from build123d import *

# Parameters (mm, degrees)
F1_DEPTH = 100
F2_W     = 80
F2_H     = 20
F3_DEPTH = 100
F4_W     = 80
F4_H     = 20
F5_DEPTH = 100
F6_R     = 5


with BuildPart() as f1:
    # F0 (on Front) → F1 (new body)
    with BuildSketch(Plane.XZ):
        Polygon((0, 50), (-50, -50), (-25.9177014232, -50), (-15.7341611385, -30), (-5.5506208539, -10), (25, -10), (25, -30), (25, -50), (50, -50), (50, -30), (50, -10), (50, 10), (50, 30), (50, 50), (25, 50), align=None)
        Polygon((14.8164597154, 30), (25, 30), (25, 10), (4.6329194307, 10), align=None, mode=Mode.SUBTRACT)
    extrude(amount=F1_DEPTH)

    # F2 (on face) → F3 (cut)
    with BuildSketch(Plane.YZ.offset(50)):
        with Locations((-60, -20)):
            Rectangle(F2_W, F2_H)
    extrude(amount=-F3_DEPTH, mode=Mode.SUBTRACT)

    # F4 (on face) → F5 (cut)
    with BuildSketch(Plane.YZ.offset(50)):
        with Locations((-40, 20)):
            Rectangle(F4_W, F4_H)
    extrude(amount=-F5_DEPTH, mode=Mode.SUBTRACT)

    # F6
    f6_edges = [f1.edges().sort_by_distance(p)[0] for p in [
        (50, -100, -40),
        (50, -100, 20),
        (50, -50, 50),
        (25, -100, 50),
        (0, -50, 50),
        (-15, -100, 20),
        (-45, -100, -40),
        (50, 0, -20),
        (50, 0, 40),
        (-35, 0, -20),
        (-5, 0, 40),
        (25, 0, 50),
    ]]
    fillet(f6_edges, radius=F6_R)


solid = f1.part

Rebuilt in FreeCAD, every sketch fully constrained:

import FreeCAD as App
import Part
import Sketcher
Q = App.Units.Quantity


def edges_at(feature, points):
    """Names of the edges that pass closest to the given points."""
    edges = feature.Shape.Edges
    near = lambda p: min(range(len(edges)), key=lambda i: edges[i].distToShape(Part.Vertex(*p))[0])
    return sorted({f"Edge{near(p) + 1}" for p in points})

doc = App.newDocument("Part")
body = doc.addObject("PartDesign::Body", "Body")

# Sketch on XZ plane
sketch1 = body.newObject("Sketcher::SketchObject", "Sketch")
sketch1.AttachmentSupport = (doc.getObject("XZ_Plane"), [""])
sketch1.MapMode = "FlatFace"
sketch1.addGeometry([
    Part.LineSegment(App.Vector(0, 50, 0), App.Vector(-50, -50, 0)),  # 0
    Part.LineSegment(App.Vector(-50, -50, 0), App.Vector(-26, -50, 0)),  # 1
    Part.LineSegment(App.Vector(-26, -50, 0), App.Vector(-16, -30, 0)),  # 2
    Part.LineSegment(App.Vector(-16, -30, 0), App.Vector(-6, -10, 0)),  # 3
    Part.LineSegment(App.Vector(-6, -10, 0), App.Vector(25, -10, 0)),  # 4
    Part.LineSegment(App.Vector(25, -10, 0), App.Vector(25, -50, 0)),  # 5
    Part.LineSegment(App.Vector(25, -50, 0), App.Vector(50, -50, 0)),  # 6
    Part.LineSegment(App.Vector(50, -50, 0), App.Vector(50, 50, 0)),  # 7
    Part.LineSegment(App.Vector(50, 50, 0), App.Vector(0, 50, 0)),  # 8
    Part.LineSegment(App.Vector(5, 10, 0), App.Vector(15, 30, 0)),  # 9
    Part.LineSegment(App.Vector(15, 30, 0), App.Vector(25, 30, 0)),  # 10
    Part.LineSegment(App.Vector(25, 30, 0), App.Vector(25, 10, 0)),  # 11
    Part.LineSegment(App.Vector(25, 10, 0), App.Vector(5, 10, 0)),  # 12
], False)
sketch1.addConstraint([
    Sketcher.Constraint("Coincident", 0, 2, 1, 1),
    Sketcher.Constraint("Coincident", 1, 2, 2, 1),
    Sketcher.Constraint("Coincident", 2, 2, 3, 1),
    Sketcher.Constraint("Coincident", 3, 2, 4, 1),
    Sketcher.Constraint("Coincident", 4, 2, 5, 1),
    Sketcher.Constraint("Coincident", 5, 2, 6, 1),
    Sketcher.Constraint("Coincident", 6, 2, 7, 1),
    Sketcher.Constraint("Coincident", 7, 2, 8, 1),
    Sketcher.Constraint("Coincident", 8, 2, 0, 1),
    Sketcher.Constraint("Coincident", 9, 2, 10, 1),
    Sketcher.Constraint("Coincident", 10, 2, 11, 1),
    Sketcher.Constraint("Coincident", 11, 2, 12, 1),
    Sketcher.Constraint("Coincident", 12, 2, 9, 1),
    Sketcher.Constraint("Horizontal", 1),
    Sketcher.Constraint("Horizontal", 4),
    Sketcher.Constraint("Vertical", 5),
    Sketcher.Constraint("Horizontal", 6),
    Sketcher.Constraint("Vertical", 7),
    Sketcher.Constraint("Horizontal", 8),
    Sketcher.Constraint("Horizontal", 10),
    Sketcher.Constraint("Vertical", 11),
    Sketcher.Constraint("Horizontal", 12),
    Sketcher.Constraint("Symmetric", 0, 2, 7, 2, -1, 1),
    Sketcher.Constraint("Symmetric", 4, 2, 11, 2, -1),
    Sketcher.Constraint("PointOnObject", 8, 2, -2),
    Sketcher.Constraint("Parallel", 2, 3),
    Sketcher.Constraint("Parallel", 3, 9),
    Sketcher.Constraint("Horizontal", 1, 2, 5, 2),
    Sketcher.Constraint("Equal", 2, 3),
    Sketcher.Constraint("Equal", 3, 9),
    Sketcher.Constraint("DistanceX", 6, 1, 6, 2, Q("25 mm")),
    Sketcher.Constraint("DistanceX", 8, 2, 8, 1, Q("50 mm")),
    Sketcher.Constraint("DistanceY", 5, 2, 5, 1, Q("40 mm")),
    Sketcher.Constraint("DistanceY", 7, 1, 7, 2, Q("100 mm")),
    Sketcher.Constraint("DistanceX", 1, 1, 1, 2, Q("24.082299 mm")),
    Sketcher.Constraint("DistanceX", 4, 1, 4, 2, Q("30.550621 mm")),
    Sketcher.Constraint("DistanceX", 10, 1, 10, 2, Q("10.18354 mm")),
])
pad1 = body.newObject("PartDesign::Pad", "Pad")
pad1.Profile = sketch1
pad1.Length = 100

# Sketch on YZ plane
sketch2 = body.newObject("Sketcher::SketchObject", "Sketch001")
sketch2.AttachmentSupport = (doc.getObject("YZ_Plane"), [""])
sketch2.MapMode = "FlatFace"
sketch2.AttachmentOffset = App.Placement(App.Vector(0, 0, 50), App.Rotation())
sketch2.addGeometry([
    Part.LineSegment(App.Vector(-100, -10, 0), App.Vector(-100, -30, 0)),
    Part.LineSegment(App.Vector(-100, -30, 0), App.Vector(-20, -30, 0)),
    Part.LineSegment(App.Vector(-20, -30, 0), App.Vector(-20, -10, 0)),
    Part.LineSegment(App.Vector(-20, -10, 0), App.Vector(-100, -10, 0)),
], False)
sketch2.addConstraint([
    Sketcher.Constraint("Coincident", 0, 2, 1, 1),
    Sketcher.Constraint("Coincident", 1, 2, 2, 1),
    Sketcher.Constraint("Coincident", 2, 2, 3, 1),
    Sketcher.Constraint("Coincident", 3, 2, 0, 1),
    Sketcher.Constraint("Vertical", 0),
    Sketcher.Constraint("Horizontal", 1),
    Sketcher.Constraint("Vertical", 2),
    Sketcher.Constraint("Horizontal", 3),
    Sketcher.Constraint("DistanceX", 1, 1, 1, 2, Q("80 mm")),
    Sketcher.Constraint("DistanceY", 0, 2, 0, 1, Q("20 mm")),
    Sketcher.Constraint("DistanceX", 0, 2, -1, 1, Q("100 mm")),
    Sketcher.Constraint("DistanceY", 0, 2, -1, 1, Q("30 mm")),
])
pocket1 = body.newObject("PartDesign::Pocket", "Pocket")
pocket1.Profile = sketch2
pocket1.Length = 100

# Sketch on YZ plane
sketch3 = body.newObject("Sketcher::SketchObject", "Sketch002")
sketch3.AttachmentSupport = (doc.getObject("YZ_Plane"), [""])
sketch3.MapMode = "FlatFace"
sketch3.AttachmentOffset = App.Placement(App.Vector(0, 0, 50), App.Rotation())
sketch3.addGeometry([
    Part.LineSegment(App.Vector(-80, 30, 0), App.Vector(-80, 10, 0)),
    Part.LineSegment(App.Vector(-80, 10, 0), App.Vector(0, 10, 0)),
    Part.LineSegment(App.Vector(0, 10, 0), App.Vector(0, 30, 0)),
    Part.LineSegment(App.Vector(0, 30, 0), App.Vector(-80, 30, 0)),
], False)
sketch3.addConstraint([
    Sketcher.Constraint("Coincident", 0, 2, 1, 1),
    Sketcher.Constraint("Coincident", 1, 2, 2, 1),
    Sketcher.Constraint("Coincident", 2, 2, 3, 1),
    Sketcher.Constraint("Coincident", 3, 2, 0, 1),
    Sketcher.Constraint("Vertical", 0),
    Sketcher.Constraint("Horizontal", 1),
    Sketcher.Constraint("Vertical", 2),
    Sketcher.Constraint("Horizontal", 3),
    Sketcher.Constraint("PointOnObject", 1, 2, -2),
    Sketcher.Constraint("DistanceX", 1, 1, 1, 2, Q("80 mm")),
    Sketcher.Constraint("DistanceY", 0, 2, 0, 1, Q("20 mm")),
    Sketcher.Constraint("DistanceY", -1, 1, 0, 2, Q("10 mm")),
])
pocket2 = body.newObject("PartDesign::Pocket", "Pocket001")
pocket2.Profile = sketch3
pocket2.Length = 100
doc.recompute()

fillet = body.newObject("PartDesign::Fillet", "Fillet")
fillet.Base = (pocket2, edges_at(pocket2, [
    (50, -100, -40),
    (50, -100, 20),
    (50, -50, 50),
    (25, -100, 50),
    (0, -50, 50),
    (-15, -100, 20),
    (-45, -100, -40),
    (50, 0, -20),
    (50, 0, 40),
    (-35, 0, -20),
    (-5, 0, 40),
    (25, 0, 50),
]))
fillet.Radius = 5

doc.recompute()
